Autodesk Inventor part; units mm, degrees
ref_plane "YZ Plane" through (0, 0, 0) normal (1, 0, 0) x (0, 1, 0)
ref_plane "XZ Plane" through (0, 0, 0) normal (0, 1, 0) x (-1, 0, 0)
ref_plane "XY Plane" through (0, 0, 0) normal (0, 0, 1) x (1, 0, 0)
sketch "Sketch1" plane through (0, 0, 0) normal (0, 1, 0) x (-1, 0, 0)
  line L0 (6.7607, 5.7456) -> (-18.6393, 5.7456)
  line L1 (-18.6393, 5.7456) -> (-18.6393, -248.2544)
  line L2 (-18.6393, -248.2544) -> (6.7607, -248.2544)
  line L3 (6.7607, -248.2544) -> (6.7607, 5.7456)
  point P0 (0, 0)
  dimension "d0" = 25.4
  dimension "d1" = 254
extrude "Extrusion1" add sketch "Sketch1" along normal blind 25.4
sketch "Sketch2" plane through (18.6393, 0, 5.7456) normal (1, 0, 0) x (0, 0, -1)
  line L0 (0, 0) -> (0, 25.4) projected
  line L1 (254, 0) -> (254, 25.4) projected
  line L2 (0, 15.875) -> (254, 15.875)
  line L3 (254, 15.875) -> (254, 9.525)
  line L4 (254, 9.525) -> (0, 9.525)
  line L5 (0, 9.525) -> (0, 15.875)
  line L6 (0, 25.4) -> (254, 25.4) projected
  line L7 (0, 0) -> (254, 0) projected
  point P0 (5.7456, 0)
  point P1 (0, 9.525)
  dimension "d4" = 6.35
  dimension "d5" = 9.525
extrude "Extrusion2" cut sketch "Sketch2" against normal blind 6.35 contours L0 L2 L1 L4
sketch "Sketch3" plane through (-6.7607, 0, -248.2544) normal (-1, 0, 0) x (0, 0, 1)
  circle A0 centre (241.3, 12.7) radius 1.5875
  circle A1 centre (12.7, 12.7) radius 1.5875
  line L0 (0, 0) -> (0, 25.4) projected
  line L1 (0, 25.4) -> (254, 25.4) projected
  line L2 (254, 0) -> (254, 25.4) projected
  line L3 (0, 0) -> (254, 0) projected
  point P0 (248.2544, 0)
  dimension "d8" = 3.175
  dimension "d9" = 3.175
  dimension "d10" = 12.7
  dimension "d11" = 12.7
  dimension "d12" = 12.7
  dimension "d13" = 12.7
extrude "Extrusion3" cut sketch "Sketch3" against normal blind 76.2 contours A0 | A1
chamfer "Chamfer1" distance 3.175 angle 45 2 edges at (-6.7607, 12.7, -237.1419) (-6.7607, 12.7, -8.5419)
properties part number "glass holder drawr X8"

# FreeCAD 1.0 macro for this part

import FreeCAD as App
import Part
import Sketcher
Q = App.Units.Quantity


def edges_at(feature, points):
    """Names of the edges that pass closest to the given points."""
    edges = feature.Shape.Edges
    near = lambda p: min(range(len(edges)), key=lambda i: edges[i].distToShape(Part.Vertex(*p))[0])
    return sorted({f"Edge{near(p) + 1}" for p in points})


def add_polygon(sketch, points):
    """Adds a closed chain of lines whose ends are joined by coincident constraints."""
    first, n = sketch.GeometryCount, len(points)
    for a, b in zip(points, points[1:] + points[:1]):
        sketch.addGeometry(Part.LineSegment(App.Vector(*a, 0), App.Vector(*b, 0)), False)
    for i in range(n):
        sketch.addConstraint(Sketcher.Constraint("Coincident", first + i, 2, first + (i + 1) % n, 1))

doc = App.newDocument("Part")
body = doc.addObject("PartDesign::Body", "Body")

# Sketch on XZ plane
sketch1 = doc.addObject("Sketcher::SketchObject", "Sketch")
body.addObject(sketch1)
sketch1.AttachmentSupport = (doc.XZ_Plane, [""])
sketch1.MapMode = "FlatFace"
add_polygon(sketch1, [(-7, -248), (-7, 6), (19, 6), (19, -248)])  # lines 0-3
sketch1.addConstraint([
    Sketcher.Constraint("Vertical", 0),
    Sketcher.Constraint("Horizontal", 1),
    Sketcher.Constraint("Vertical", 2),
    Sketcher.Constraint("Horizontal", 3),
    Sketcher.Constraint("DistanceX", 1, 1, 1, 2, Q("1 in")),
    Sketcher.Constraint("DistanceY", 0, 1, 0, 2, Q("10 in")),
    Sketcher.Constraint("DistanceY", -1, 1, 0, 2, Q("0.2262 in")),
    Sketcher.Constraint("DistanceX", 0, 2, -1, 1, 6.7607),
])
pad1 = doc.addObject("PartDesign::Pad", "Pad")
body.addObject(pad1)
pad1.Profile = sketch1
pad1.Length = Q("1 in")
pad1.Reversed = True

# Sketch on YZ plane
sketch2 = doc.addObject("Sketcher::SketchObject", "Sketch001")
body.addObject(sketch2)
sketch2.AttachmentSupport = (doc.YZ_Plane, [""])
sketch2.MapMode = "FlatFace"
sketch2.AttachmentOffset = App.Placement(App.Vector(0, 0, 18.6393), App.Rotation())
add_polygon(sketch2, [(16, 6), (10, 6), (10, -248), (16, -248)])  # lines 0-3
sketch2.addConstraint([
    Sketcher.Constraint("Horizontal", 0),
    Sketcher.Constraint("Vertical", 1),
    Sketcher.Constraint("Horizontal", 2),
    Sketcher.Constraint("Vertical", 3),
    Sketcher.Constraint("DistanceX", 0, 2, 0, 1, Q("0.25 in")),
    Sketcher.Constraint("DistanceY", 1, 2, 1, 1, Q("10 in")),
    Sketcher.Constraint("DistanceX", -1, 1, 0, 2, Q("0.375 in")),
    Sketcher.Constraint("DistanceY", -1, 1, 0, 2, Q("0.2262 in")),
])
pocket1 = doc.addObject("PartDesign::Pocket", "Pocket")
body.addObject(pocket1)
pocket1.Profile = sketch2
pocket1.Length = Q("0.25 in")

# Sketch on YZ plane
sketch3 = doc.addObject("Sketcher::SketchObject", "Sketch002")
body.addObject(sketch3)
sketch3.AttachmentSupport = (doc.YZ_Plane, [""])
sketch3.MapMode = "FlatFace"
sketch3.AttachmentOffset = App.Placement(App.Vector(0, 0, -6.7607), App.Rotation())
sketch3.addGeometry([
    Part.Circle(App.Vector(12.7, -7, 0), App.Vector(0, 0, 1), 1.6),
    Part.Circle(App.Vector(12.7, -235.6, 0), App.Vector(0, 0, 1), 1.6),
], False)
sketch3.addConstraint([
    Sketcher.Constraint("Equal", 0, 1),
    Sketcher.Constraint("Vertical", 0, 3, 1, 3),
    Sketcher.Constraint("Diameter", 0, Q("0.125 in")),
    Sketcher.Constraint("DistanceX", -1, 1, 0, 3, Q("0.5 in")),
    Sketcher.Constraint("DistanceY", 1, 3, 0, 3, Q("9 in")),
    Sketcher.Constraint("DistanceY", 0, 3, -1, 1, Q("0.2738 in")),
])
pocket2 = doc.addObject("PartDesign::Pocket", "Pocket001")
body.addObject(pocket2)
pocket2.Profile = sketch3
pocket2.Length = Q("3 in")
pocket2.Reversed = True
doc.recompute()

chamfer = doc.addObject("PartDesign::Chamfer", "Chamfer")
body.addObject(chamfer)
chamfer.Base = (pocket2, edges_at(pocket2, [(-6.761, 12.7, -237.142), (-6.761, 12.7, -8.542)]))
chamfer.Size = Q("0.125 in")

doc.recompute()
